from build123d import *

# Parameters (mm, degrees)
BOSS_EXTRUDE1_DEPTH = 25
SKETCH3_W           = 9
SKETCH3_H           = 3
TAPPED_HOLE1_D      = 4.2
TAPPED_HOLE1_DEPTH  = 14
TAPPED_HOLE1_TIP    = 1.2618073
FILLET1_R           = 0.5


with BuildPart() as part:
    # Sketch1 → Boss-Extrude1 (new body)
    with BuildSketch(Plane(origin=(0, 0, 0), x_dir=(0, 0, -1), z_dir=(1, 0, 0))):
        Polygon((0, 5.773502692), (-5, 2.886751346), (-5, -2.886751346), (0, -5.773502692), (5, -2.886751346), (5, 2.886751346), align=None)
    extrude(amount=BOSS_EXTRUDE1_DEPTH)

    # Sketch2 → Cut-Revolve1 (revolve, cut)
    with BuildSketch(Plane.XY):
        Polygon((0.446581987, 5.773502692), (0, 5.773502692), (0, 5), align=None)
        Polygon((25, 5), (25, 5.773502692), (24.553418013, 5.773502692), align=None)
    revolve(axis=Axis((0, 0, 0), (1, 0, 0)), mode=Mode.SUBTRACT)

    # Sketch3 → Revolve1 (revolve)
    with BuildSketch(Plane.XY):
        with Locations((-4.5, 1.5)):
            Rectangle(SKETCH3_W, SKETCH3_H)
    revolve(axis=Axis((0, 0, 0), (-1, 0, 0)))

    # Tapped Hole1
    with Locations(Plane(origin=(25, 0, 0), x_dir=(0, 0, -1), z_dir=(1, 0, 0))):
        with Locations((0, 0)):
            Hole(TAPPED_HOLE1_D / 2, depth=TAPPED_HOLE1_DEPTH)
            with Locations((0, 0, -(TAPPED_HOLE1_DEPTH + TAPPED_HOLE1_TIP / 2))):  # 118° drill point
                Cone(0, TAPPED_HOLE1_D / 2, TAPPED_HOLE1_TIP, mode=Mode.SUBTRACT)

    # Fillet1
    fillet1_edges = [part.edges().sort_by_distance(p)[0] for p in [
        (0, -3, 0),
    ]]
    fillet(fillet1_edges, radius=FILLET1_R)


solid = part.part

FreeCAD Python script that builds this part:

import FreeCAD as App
import Part
import Sketcher
from FreeCAD import Vector
Q = App.Units.Quantity


def edges_at(feature, points):
    """Names of the edges that pass closest to the given points."""
    edges = feature.Shape.Edges
    near = lambda p: min(range(len(edges)), key=lambda i: edges[i].distToShape(Part.Vertex(*p))[0])
    return sorted({f"Edge{near(p) + 1}" for p in points})


def add_polygon(sketch, points):
    """Adds a closed chain of lines whose ends are joined by coincident constraints."""
    first, n = sketch.GeometryCount, len(points)
    for a, b in zip(points, points[1:] + points[:1]):
        sketch.addGeometry(Part.LineSegment(App.Vector(*a, 0), App.Vector(*b, 0)), False)
    for i in range(n):
        sketch.addConstraint(Sketcher.Constraint("Coincident", first + i, 2, first + (i + 1) % n, 1))

doc = App.newDocument("Part")
params = doc.addObject("Spreadsheet::Sheet", "Params")
for row, (alias, value) in enumerate([
    ("pad1_length", "25 mm"),
    ("groove_angle", "360 deg"),
    ("sketch3_width", "9 mm"),
    ("sketch3_height", "3 mm"),
    ("revolution_angle", "360 deg"),
    ("sketch4_diameter", "4.2 mm"),
    ("hole_diameter", "4.2 mm"),
    ("hole_depth", "14 mm"),
    ("fillet_radius", "0.5 mm"),
], start=1):
    params.set(f"A{row}", alias)
    params.set(f"B{row}", "=" + value)
    params.setAlias(f"B{row}", alias)

body = doc.addObject("PartDesign::Body", "Body")

# Sketch on YZ plane
sketch1 = body.newObject("Sketcher::SketchObject", "Sketch")
sketch1.AttachmentSupport = (doc.getObject("YZ_Plane"), [""])
sketch1.MapMode = "FlatFace"
add_polygon(sketch1, [(5.773503, 0), (2.886751, 5), (-2.886751, 5), (-5.773503, 0), (-2.886751, -5), (2.886751, -5)])  # lines 0-5
sketch1.addConstraint([
    Sketcher.Constraint("Horizontal", 1),
    Sketcher.Constraint("Horizontal", 4),
    Sketcher.Constraint("Symmetric", 0, 2, 3, 2, -1, 1),
    Sketcher.Constraint("Symmetric", 2, 2, 5, 2, -1, 1),
    Sketcher.Constraint("PointOnObject", 2, 2, -1),
    Sketcher.Constraint("Parallel", 2, 5),
    Sketcher.Constraint("Vertical", 1, 2, 3, 2),
    Sketcher.Constraint("Angle", 0, Q("120 deg")),
    Sketcher.Constraint("DistanceY", -1, 1, 0, 2, Q("5 mm")),
    Sketcher.Constraint("DistanceX", 1, 2, 1, 1, Q("5.773503 mm")),
])
pad1 = body.newObject("PartDesign::Pad", "Pad")
pad1.Profile = sketch1
pad1.setExpression("Length", "Params.pad1_length")

# Sketch on XY plane
sketch2 = body.newObject("Sketcher::SketchObject", "Sketch001")
sketch2.AttachmentSupport = (doc.getObject("XY_Plane"), [""])
sketch2.MapMode = "FlatFace"
add_polygon(sketch2, [(0.446582, 5.773503), (0, 5.773503), (0, 5)])  # lines 0-2
add_polygon(sketch2, [(25, 5), (25, 5.773503), (24.553418, 5.773503)])  # lines 3-5
sketch2.addConstraint([
    Sketcher.Constraint("Horizontal", 0),
    Sketcher.Constraint("Vertical", 1),
    Sketcher.Constraint("Vertical", 3),
    Sketcher.Constraint("Horizontal", 4),
    Sketcher.Constraint("PointOnObject", 0, 2, -2),
    Sketcher.Constraint("Horizontal", 2, 2, 3, 2),
    Sketcher.Constraint("Horizontal", 1, 2, 5, 2),
    Sketcher.Constraint("Equal", 0, 4),
    Sketcher.Constraint("Angle", 2, Q("60 deg")),
    Sketcher.Constraint("DistanceY", -1, 1, 1, 2, Q("5 mm")),
    Sketcher.Constraint("DistanceX", -1, 1, 3, 2, Q("25 mm")),
    Sketcher.Constraint("DistanceX", 0, 2, 0, 1, Q("0.446582 mm")),
])
groove = body.newObject("PartDesign::Groove", "Groove")
groove.Profile = sketch2
groove.ReferenceAxis = (sketch2, ["H_Axis"])
groove.setExpression("Angle", "Params.groove_angle")

# Sketch on XY plane
sketch3 = body.newObject("Sketcher::SketchObject", "Sketch002")
sketch3.AttachmentSupport = (doc.getObject("XY_Plane"), [""])
sketch3.MapMode = "FlatFace"
add_polygon(sketch3, [(-9, 3), (-9, 0), (0, 0), (0, 3)])  # lines 0-3
sketch3.addConstraint([
    Sketcher.Constraint("Vertical", 0),
    Sketcher.Constraint("Horizontal", 1),
    Sketcher.Constraint("Vertical", 2),
    Sketcher.Constraint("Horizontal", 3),
    Sketcher.Constraint("Coincident", 1, 2, -1, 1),
    Sketcher.Constraint("DistanceX", 1, 1, 1, 2, Q("9 mm")),
    Sketcher.Constraint("DistanceY", 0, 2, 0, 1, Q("3 mm")),
])
sketch3.setExpression("Constraints[9]", "Params.sketch3_width")
sketch3.setExpression("Constraints[10]", "Params.sketch3_height")
revolution = body.newObject("PartDesign::Revolution", "Revolution")
revolution.Profile = sketch3
revolution.ReferenceAxis = (sketch3, ["H_Axis"])
revolution.setExpression("Angle", "Params.revolution_angle")

# Sketch on YZ plane
sketch4 = body.newObject("Sketcher::SketchObject", "Sketch003")
sketch4.AttachmentSupport = (doc.getObject("YZ_Plane"), [""])
sketch4.MapMode = "FlatFace"
sketch4.AttachmentOffset = App.Placement(Vector(0, 0, 25), App.Rotation())
sketch4.addGeometry(Part.Circle(Vector(0, 0, 0), Vector(0, 0, 1), 2.1), False)
sketch4.addConstraint([
    Sketcher.Constraint("Coincident", 0, 3, -1, 1),
    Sketcher.Constraint("Diameter", 0, Q("4.2 mm")),
])
sketch4.setExpression("Constraints[1]", "Params.sketch4_diameter")
doc.recompute()
hole = body.newObject("PartDesign::Hole", "Hole")
hole.Profile = sketch4
hole.ThreadType = "None"
hole.setExpression("Diameter", "Params.hole_diameter")
hole.DepthType = "Dimension"
hole.setExpression("Depth", "Params.hole_depth")
hole.DrillPoint = "Angled"
hole.DrillPointAngle = 118
doc.recompute()

fillet = body.newObject("PartDesign::Fillet", "Fillet")
fillet.Base = (hole, edges_at(hole, [(0, -3, 0)]))
fillet.setExpression("Radius", "Params.fillet_radius")

doc.recompute()
